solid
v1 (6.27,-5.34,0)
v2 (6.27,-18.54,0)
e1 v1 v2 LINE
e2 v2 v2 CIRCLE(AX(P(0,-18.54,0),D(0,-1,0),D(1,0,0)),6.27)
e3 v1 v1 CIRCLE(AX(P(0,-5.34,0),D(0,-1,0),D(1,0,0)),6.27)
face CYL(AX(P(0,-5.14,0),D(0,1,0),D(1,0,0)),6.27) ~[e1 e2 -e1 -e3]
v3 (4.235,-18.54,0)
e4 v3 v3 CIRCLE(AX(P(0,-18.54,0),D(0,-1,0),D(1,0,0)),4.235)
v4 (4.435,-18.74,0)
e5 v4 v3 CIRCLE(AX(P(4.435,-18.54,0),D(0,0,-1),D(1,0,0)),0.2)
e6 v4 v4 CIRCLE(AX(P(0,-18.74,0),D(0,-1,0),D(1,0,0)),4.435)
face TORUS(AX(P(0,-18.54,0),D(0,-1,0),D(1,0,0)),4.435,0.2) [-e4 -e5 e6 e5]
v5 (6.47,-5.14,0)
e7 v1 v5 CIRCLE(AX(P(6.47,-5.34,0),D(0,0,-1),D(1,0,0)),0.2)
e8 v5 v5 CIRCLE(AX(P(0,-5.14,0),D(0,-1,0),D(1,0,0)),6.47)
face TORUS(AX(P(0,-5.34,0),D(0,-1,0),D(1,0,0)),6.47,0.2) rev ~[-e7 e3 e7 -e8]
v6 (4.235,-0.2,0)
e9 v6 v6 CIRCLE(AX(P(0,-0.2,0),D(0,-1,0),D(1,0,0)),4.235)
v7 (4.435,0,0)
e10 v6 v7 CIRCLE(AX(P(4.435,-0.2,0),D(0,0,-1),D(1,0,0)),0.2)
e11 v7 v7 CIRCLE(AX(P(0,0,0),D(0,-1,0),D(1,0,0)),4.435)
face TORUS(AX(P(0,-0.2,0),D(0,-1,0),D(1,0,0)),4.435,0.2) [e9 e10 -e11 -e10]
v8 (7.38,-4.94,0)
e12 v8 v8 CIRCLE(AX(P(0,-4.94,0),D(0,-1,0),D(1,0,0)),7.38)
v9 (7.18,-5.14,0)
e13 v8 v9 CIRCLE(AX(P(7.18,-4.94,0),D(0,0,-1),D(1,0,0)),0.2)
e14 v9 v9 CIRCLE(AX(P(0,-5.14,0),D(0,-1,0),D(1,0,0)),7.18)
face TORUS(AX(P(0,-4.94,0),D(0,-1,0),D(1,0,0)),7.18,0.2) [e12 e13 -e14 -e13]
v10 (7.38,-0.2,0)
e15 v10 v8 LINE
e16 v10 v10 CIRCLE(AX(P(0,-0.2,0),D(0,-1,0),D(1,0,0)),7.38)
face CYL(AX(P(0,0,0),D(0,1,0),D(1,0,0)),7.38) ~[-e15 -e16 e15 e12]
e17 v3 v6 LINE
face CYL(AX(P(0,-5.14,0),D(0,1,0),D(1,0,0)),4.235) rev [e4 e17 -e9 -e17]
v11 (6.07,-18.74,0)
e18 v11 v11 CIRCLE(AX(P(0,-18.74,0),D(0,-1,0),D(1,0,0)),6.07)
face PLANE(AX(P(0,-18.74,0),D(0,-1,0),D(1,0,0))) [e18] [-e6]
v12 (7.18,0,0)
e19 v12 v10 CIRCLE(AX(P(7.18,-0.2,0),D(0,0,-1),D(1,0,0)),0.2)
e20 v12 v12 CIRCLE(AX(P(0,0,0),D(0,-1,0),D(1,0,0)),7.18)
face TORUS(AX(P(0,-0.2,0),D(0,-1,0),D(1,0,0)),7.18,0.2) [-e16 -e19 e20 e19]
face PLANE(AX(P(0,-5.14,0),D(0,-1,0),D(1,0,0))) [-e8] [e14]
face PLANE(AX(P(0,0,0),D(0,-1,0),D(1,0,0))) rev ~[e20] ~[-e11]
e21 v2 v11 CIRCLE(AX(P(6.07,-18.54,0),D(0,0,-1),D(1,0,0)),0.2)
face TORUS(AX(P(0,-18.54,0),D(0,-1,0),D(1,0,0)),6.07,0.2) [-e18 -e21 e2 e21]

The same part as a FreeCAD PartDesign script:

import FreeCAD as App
import Part
import Sketcher
from FreeCAD import Vector
Q = App.Units.Quantity


def edges_at(feature, points):
    """Names of the edges that pass closest to the given points."""
    edges = feature.Shape.Edges
    near = lambda p: min(range(len(edges)), key=lambda i: edges[i].distToShape(Part.Vertex(*p))[0])
    return sorted({f"Edge{near(p) + 1}" for p in points})

doc = App.newDocument("Part")
params = doc.addObject("Spreadsheet::Sheet", "Params")
for row, (alias, value) in enumerate([
    ("sketch1_diameter", "14.76 mm"),
    ("sketch1_diameter2", "8.47 mm"),
    ("pad1_length", "5.14 mm"),
    ("sketch2_diameter", "12.54 mm"),
    ("sketch2_diameter2", "8.47 mm"),
    ("pad2_length", "13.6 mm"),
    ("fillet_radius", "0.2 mm"),
], start=1):
    params.set(f"A{row}", alias)
    params.set(f"B{row}", "=" + value)
    params.setAlias(f"B{row}", alias)

body = doc.addObject("PartDesign::Body", "Body")

# Sketch on XZ plane
sketch1 = body.newObject("Sketcher::SketchObject", "Sketch")
sketch1.AttachmentSupport = (doc.getObject("XZ_Plane"), [""])
sketch1.MapMode = "FlatFace"
sketch1.addGeometry(Part.Circle(Vector(0, 0, 0), Vector(0, 0, 1), 7.4), False)
sketch1.addGeometry(Part.Circle(Vector(0, 0, 0), Vector(0, 0, 1), 4.2), False)
sketch1.addConstraint(Sketcher.Constraint("Coincident", 0, 3, -1, 1))
sketch1.addConstraint(Sketcher.Constraint("Coincident", 1, 3, -1, 1))
sketch1.addConstraint(Sketcher.Constraint("Diameter", 0, Q("14.76 mm")))
sketch1.addConstraint(Sketcher.Constraint("Diameter", 1, Q("8.47 mm")))
sketch1.setExpression("Constraints[2]", "Params.sketch1_diameter")
sketch1.setExpression("Constraints[3]", "Params.sketch1_diameter2")
pad1 = body.newObject("PartDesign::Pad", "Pad")
pad1.Profile = sketch1
pad1.setExpression("Length", "Params.pad1_length")

# Sketch on XZ plane
sketch2 = body.newObject("Sketcher::SketchObject", "Sketch001")
sketch2.AttachmentSupport = (doc.getObject("XZ_Plane"), [""])
sketch2.MapMode = "FlatFace"
sketch2.AttachmentOffset = App.Placement(Vector(0, 0, 5.14), App.Rotation())
sketch2.addGeometry(Part.Circle(Vector(0, 0, 0), Vector(0, 0, 1), 6.3), False)
sketch2.addGeometry(Part.Circle(Vector(0, 0, 0), Vector(0, 0, 1), 4.2), False)
sketch2.addConstraint(Sketcher.Constraint("Coincident", 0, 3, -1, 1))
sketch2.addConstraint(Sketcher.Constraint("Coincident", 1, 3, -1, 1))
sketch2.addConstraint(Sketcher.Constraint("Diameter", 0, Q("12.54 mm")))
sketch2.addConstraint(Sketcher.Constraint("Diameter", 1, Q("8.47 mm")))
sketch2.setExpression("Constraints[2]", "Params.sketch2_diameter")
sketch2.setExpression("Constraints[3]", "Params.sketch2_diameter2")
pad2 = body.newObject("PartDesign::Pad", "Pad001")
pad2.Profile = sketch2
pad2.setExpression("Length", "Params.pad2_length")
doc.recompute()

fillet = body.newObject("PartDesign::Fillet", "Fillet")
fillet.Base = (pad2, edges_at(pad2, [
    (-6.27, -18.74, 0),
    (-7.38, -5.14, 0),
    (-7.38, 0, 0),
    (-4.235, -18.74, 0),
    (-6.27, -5.14, 0),
    (-4.235, 0, 0),
]))
fillet.setExpression("Radius", "Params.fillet_radius")

doc.recompute()
